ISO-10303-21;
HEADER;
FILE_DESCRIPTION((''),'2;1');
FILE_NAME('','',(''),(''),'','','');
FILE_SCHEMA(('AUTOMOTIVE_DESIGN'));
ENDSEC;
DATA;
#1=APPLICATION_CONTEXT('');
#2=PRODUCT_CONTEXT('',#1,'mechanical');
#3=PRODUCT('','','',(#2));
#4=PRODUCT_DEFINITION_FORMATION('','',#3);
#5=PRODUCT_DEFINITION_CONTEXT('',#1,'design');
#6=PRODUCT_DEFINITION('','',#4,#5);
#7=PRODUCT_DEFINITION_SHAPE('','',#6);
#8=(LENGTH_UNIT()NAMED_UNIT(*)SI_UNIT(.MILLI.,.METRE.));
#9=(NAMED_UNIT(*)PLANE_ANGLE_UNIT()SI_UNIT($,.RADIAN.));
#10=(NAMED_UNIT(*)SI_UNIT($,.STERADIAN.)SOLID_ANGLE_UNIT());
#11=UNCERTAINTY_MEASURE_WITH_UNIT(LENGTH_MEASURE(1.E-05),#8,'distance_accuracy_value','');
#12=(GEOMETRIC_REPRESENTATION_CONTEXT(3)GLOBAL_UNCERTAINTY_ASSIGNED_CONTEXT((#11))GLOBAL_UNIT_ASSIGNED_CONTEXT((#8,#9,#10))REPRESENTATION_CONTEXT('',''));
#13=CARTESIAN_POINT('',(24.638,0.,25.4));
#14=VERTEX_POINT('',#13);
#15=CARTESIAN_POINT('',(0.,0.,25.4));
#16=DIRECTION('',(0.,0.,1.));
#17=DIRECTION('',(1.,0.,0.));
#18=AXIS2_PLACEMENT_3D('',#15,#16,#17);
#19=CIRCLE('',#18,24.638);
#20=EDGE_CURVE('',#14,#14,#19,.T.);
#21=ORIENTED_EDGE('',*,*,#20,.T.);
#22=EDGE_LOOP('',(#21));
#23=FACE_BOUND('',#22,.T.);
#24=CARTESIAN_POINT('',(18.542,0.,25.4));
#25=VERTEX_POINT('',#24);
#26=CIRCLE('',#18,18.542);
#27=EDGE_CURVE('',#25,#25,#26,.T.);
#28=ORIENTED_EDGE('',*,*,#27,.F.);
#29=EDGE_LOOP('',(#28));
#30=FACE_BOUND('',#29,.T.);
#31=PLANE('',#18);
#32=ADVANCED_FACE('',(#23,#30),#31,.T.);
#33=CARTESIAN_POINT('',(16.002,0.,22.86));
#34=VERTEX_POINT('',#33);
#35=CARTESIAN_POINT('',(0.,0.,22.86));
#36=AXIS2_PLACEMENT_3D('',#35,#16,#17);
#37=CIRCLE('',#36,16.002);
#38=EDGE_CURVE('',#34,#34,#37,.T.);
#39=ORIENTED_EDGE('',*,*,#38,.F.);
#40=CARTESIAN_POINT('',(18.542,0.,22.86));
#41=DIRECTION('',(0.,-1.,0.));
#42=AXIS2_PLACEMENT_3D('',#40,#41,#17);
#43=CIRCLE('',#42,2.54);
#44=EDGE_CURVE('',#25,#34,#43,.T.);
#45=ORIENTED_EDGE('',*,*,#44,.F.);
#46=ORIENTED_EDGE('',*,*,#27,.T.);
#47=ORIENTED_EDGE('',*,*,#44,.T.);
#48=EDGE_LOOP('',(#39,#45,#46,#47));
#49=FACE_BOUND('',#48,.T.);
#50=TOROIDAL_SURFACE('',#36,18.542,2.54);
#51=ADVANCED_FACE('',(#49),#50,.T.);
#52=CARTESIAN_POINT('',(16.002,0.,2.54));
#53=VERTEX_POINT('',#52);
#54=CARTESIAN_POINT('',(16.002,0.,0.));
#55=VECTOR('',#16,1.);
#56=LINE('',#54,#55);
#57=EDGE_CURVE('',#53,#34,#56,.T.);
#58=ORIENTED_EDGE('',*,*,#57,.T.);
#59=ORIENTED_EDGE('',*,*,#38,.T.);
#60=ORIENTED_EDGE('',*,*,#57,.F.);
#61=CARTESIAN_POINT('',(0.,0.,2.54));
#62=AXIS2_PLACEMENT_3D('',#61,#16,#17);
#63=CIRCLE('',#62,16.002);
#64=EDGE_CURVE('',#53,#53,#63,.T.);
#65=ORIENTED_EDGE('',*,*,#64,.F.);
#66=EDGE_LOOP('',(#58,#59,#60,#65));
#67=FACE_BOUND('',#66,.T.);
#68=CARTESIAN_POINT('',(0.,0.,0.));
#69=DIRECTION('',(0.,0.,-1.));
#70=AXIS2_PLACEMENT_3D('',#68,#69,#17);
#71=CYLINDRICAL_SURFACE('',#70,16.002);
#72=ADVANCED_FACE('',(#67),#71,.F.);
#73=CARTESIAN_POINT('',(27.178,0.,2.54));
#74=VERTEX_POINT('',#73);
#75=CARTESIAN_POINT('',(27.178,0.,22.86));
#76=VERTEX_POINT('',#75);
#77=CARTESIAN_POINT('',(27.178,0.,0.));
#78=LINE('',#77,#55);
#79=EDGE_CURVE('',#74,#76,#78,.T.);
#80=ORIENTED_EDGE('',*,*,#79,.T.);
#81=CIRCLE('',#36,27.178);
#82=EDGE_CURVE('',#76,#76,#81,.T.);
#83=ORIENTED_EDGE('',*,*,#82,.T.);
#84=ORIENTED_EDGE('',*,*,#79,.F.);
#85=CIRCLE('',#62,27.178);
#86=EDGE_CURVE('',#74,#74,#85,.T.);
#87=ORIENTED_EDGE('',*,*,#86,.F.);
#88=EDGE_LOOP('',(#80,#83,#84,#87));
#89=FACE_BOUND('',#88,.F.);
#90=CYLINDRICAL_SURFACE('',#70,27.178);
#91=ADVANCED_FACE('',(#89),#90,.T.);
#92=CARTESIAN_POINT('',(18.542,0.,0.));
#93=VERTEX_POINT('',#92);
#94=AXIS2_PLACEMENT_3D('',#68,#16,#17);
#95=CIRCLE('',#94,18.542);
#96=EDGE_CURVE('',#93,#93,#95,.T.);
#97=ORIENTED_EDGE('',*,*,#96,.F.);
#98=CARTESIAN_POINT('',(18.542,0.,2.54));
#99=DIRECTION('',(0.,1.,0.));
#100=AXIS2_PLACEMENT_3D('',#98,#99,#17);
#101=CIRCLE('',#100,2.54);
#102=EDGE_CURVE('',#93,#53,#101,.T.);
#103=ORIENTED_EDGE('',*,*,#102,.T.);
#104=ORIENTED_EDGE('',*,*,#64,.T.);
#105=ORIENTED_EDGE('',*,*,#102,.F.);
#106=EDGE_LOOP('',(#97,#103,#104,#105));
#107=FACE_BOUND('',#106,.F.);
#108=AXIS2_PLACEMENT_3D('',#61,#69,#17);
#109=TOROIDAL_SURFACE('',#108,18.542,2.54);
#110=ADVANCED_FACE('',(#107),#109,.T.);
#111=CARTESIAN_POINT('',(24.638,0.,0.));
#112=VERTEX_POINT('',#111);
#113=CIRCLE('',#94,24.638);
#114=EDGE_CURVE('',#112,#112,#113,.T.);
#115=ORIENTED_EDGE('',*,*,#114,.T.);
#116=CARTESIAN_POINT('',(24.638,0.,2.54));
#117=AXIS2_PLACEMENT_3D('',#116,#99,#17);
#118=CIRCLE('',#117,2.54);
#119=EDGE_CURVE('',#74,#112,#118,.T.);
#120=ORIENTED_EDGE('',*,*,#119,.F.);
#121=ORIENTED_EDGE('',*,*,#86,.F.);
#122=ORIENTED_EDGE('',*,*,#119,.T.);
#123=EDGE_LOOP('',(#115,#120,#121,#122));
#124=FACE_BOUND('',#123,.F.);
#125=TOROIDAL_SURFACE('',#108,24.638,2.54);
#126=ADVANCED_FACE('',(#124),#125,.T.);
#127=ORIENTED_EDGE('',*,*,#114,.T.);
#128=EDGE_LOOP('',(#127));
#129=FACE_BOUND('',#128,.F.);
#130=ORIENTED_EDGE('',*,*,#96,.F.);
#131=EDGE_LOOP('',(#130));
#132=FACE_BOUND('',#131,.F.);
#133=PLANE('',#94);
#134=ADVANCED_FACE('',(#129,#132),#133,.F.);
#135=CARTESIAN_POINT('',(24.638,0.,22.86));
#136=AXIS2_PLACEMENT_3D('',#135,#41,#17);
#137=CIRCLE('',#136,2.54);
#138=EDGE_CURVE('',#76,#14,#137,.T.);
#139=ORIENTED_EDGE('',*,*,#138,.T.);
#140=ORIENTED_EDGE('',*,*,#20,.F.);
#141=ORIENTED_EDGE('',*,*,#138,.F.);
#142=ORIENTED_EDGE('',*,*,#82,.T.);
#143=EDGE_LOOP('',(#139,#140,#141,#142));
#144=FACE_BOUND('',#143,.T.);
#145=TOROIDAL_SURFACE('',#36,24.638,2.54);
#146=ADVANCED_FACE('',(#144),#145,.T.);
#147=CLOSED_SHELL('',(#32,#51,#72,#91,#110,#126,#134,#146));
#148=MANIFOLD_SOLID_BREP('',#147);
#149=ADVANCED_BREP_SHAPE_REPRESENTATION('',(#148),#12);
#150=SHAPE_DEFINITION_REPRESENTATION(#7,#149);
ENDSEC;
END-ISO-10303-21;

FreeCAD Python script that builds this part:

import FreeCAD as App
import Part
import Sketcher
from FreeCAD import Vector
Q = App.Units.Quantity


def edges_at(feature, points):
    """Names of the edges that pass closest to the given points."""
    edges = feature.Shape.Edges
    near = lambda p: min(range(len(edges)), key=lambda i: edges[i].distToShape(Part.Vertex(*p))[0])
    return sorted({f"Edge{near(p) + 1}" for p in points})

doc = App.newDocument("Part")
body = doc.addObject("PartDesign::Body", "Body")

sketch1 = body.newObject("Sketcher::SketchObject", "Sketch")
sketch1.AttachmentSupport = (doc.getObject("XY_Plane"), [""])
sketch1.MapMode = "FlatFace"
sketch1.addGeometry(Part.Circle(Vector(0, 0, 0), Vector(0, 0, 1), 27), False)
sketch1.addGeometry(Part.Circle(Vector(0, 0, 0), Vector(0, 0, 1), 16), False)
sketch1.addConstraint(Sketcher.Constraint("Coincident", 0, 3, -1, 1))
sketch1.addConstraint(Sketcher.Constraint("Coincident", 1, 3, -1, 1))
sketch1.addConstraint(Sketcher.Constraint("Diameter", 0, Q("2.14 in")))
sketch1.addConstraint(Sketcher.Constraint("Diameter", 1, Q("1.26 in")))
pad1 = body.newObject("PartDesign::Pad", "Pad")
pad1.Profile = sketch1
pad1.Length = Q("1 in")
doc.recompute()

fillet = body.newObject("PartDesign::Fillet", "Fillet")
fillet.Base = (pad1, edges_at(pad1, [(-27.178, 0, 0)]))
fillet.Radius = Q("0.1 in")
doc.recompute()

fillet2 = body.newObject("PartDesign::Fillet", "Fillet001")
fillet2.Base = (fillet, edges_at(fillet, [(-16.002, 0, 0), (-27.178, 0, 25.4), (-16.002, 0, 25.4)]))
fillet2.Radius = Q("0.1 in")

doc.recompute()
